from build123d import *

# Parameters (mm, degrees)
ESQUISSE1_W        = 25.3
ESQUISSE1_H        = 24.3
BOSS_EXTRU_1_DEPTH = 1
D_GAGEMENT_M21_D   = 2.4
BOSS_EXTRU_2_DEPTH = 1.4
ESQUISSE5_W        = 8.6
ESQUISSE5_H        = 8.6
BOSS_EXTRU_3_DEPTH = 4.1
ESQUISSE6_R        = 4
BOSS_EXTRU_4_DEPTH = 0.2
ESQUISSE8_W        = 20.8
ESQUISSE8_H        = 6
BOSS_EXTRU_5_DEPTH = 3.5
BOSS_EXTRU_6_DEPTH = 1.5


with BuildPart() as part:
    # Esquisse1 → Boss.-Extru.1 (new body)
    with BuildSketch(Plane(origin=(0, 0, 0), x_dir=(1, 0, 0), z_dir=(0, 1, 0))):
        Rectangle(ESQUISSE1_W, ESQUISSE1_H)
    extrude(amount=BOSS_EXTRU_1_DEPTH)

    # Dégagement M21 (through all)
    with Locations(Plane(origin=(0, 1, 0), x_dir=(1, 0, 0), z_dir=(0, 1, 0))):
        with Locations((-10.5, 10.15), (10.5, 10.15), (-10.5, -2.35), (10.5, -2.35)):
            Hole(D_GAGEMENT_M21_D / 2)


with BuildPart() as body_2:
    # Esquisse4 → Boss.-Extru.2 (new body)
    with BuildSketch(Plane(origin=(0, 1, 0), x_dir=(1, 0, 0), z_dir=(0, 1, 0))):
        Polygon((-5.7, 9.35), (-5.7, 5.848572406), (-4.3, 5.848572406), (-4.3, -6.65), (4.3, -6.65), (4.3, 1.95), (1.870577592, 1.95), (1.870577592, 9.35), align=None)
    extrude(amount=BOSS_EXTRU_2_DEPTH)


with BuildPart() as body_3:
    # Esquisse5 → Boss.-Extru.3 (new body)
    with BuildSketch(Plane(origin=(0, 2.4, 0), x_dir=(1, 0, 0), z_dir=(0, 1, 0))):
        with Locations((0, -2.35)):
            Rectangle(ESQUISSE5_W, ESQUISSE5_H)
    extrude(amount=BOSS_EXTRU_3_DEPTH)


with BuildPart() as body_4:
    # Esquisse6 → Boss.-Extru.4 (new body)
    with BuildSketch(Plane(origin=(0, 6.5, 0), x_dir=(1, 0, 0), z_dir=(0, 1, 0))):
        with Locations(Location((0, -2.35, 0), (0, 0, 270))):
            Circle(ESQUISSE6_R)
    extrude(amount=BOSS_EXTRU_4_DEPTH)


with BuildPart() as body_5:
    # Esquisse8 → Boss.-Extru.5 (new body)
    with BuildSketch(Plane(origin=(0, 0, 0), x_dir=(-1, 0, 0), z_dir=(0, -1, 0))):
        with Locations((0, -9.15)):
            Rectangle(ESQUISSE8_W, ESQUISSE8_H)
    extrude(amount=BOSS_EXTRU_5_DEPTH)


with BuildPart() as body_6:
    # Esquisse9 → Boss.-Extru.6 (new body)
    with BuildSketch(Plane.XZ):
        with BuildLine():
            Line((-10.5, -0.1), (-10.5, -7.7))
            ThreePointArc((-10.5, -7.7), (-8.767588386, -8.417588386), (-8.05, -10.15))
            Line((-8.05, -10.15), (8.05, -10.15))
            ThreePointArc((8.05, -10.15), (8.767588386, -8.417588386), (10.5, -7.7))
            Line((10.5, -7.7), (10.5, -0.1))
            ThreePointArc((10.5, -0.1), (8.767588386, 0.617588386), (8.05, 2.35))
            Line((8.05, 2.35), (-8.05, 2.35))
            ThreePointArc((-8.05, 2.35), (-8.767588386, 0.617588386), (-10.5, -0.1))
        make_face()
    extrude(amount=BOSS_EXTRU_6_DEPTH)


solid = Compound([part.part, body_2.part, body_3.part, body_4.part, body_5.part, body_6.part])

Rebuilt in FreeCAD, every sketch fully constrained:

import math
import FreeCAD as App
import Part
import Sketcher
from FreeCAD import Vector
Q = App.Units.Quantity


def add_polygon(sketch, points):
    """Adds a closed chain of lines whose ends are joined by coincident constraints."""
    first, n = sketch.GeometryCount, len(points)
    for a, b in zip(points, points[1:] + points[:1]):
        sketch.addGeometry(Part.LineSegment(App.Vector(*a, 0), App.Vector(*b, 0)), False)
    for i in range(n):
        sketch.addConstraint(Sketcher.Constraint("Coincident", first + i, 2, first + (i + 1) % n, 1))

doc = App.newDocument("Part")
params = doc.addObject("Spreadsheet::Sheet", "Params")
for row, (alias, value) in enumerate([
    ("sketch1_width", "25.3 mm"),
    ("sketch1_height", "24.3 mm"),
    ("pad1_length", "1 mm"),
    ("sketch2_diameter", "2.4 mm"),
    ("hole_diameter", "2.4 mm"),
    ("sketch3_width", "1.4 mm"),
    ("sketch3_width2", "8.6 mm"),
    ("sketch3_height", "7.4 mm"),
    ("pad2_length", "1.4 mm"),
    ("sketch4_width", "8.6 mm"),
    ("pad3_length", "4.1 mm"),
    ("sketch5_diameter", "8 mm"),
    ("pad4_length", "0.2 mm"),
    ("sketch6_height", "6 mm"),
    ("sketch6_width", "20.8 mm"),
    ("pad5_length", "3.5 mm"),
    ("sketch7_radius", "2.45 mm"),
    ("sketch7_width", "16.1 mm"),
    ("sketch7_height", "7.6 mm"),
    ("pad6_length", "1.5 mm"),
], start=1):
    params.set(f"A{row}", alias)
    params.set(f"B{row}", "=" + value)
    params.setAlias(f"B{row}", alias)

body = doc.addObject("PartDesign::Body", "Body")

# Sketch on XZ plane
sketch1 = doc.addObject("Sketcher::SketchObject", "Sketch")
body.addObject(sketch1)
sketch1.AttachmentSupport = (doc.XZ_Plane, [""])
sketch1.MapMode = "FlatFace"
add_polygon(sketch1, [(-13, -12), (-13, 12), (13, 12), (13, -12)])  # lines 0-3
sketch1.addConstraint([
    Sketcher.Constraint("Vertical", 0),
    Sketcher.Constraint("Horizontal", 1),
    Sketcher.Constraint("Vertical", 2),
    Sketcher.Constraint("Horizontal", 3),
    Sketcher.Constraint("Symmetric", 0, 2, 2, 2, -1, 1),
    Sketcher.Constraint("DistanceX", 1, 1, 1, 2, Q("25.3 mm")),
    Sketcher.Constraint("DistanceY", 0, 1, 0, 2, Q("24.3 mm")),
])
sketch1.setExpression("Constraints[9]", "Params.sketch1_width")
sketch1.setExpression("Constraints[10]", "Params.sketch1_height")
pad1 = doc.addObject("PartDesign::Pad", "Pad")
body.addObject(pad1)
pad1.Profile = sketch1
pad1.setExpression("Length", "Params.pad1_length")
pad1.Reversed = True

# Sketch on XZ plane
sketch2 = doc.addObject("Sketcher::SketchObject", "Sketch001")
body.addObject(sketch2)
sketch2.AttachmentSupport = (doc.XZ_Plane, [""])
sketch2.MapMode = "FlatFace"
sketch2.AttachmentOffset = App.Placement(Vector(0, 0, -1), App.Rotation())
sketch2.addGeometry([
    Part.Circle(Vector(-10.5, -10.2, 0), Vector(0, 0, 1), 1.2),
    Part.Circle(Vector(10.5, -10.2, 0), Vector(0, 0, 1), 1.2),
    Part.Circle(Vector(-10.5, 2.4, 0), Vector(0, 0, 1), 1.2),
    Part.Circle(Vector(10.5, 2.4, 0), Vector(0, 0, 1), 1.2),
], False)
sketch2.addConstraint([
    Sketcher.Constraint("Equal", 0, 1),
    Sketcher.Constraint("Equal", 1, 2),
    Sketcher.Constraint("Equal", 2, 3),
    Sketcher.Constraint("Symmetric", 0, 3, 1, 3, -2),
    Sketcher.Constraint("Symmetric", 2, 3, 3, 3, -2),
    Sketcher.Constraint("Vertical", 0, 3, 2, 3),
    Sketcher.Constraint("Diameter", 0, Q("2.4 mm")),
    Sketcher.Constraint("DistanceX", 0, 3, 1, 3, Q("21 mm")),
    Sketcher.Constraint("DistanceY", 0, 3, 2, 3, Q("12.5 mm")),
    Sketcher.Constraint("DistanceY", 0, 3, -1, 1, Q("10.15 mm")),
])
sketch2.setExpression("Constraints[6]", "Params.sketch2_diameter")
doc.recompute()
hole = doc.addObject("PartDesign::Hole", "Hole")
body.addObject(hole)
hole.Profile = sketch2
hole.ThreadType = "None"
hole.setExpression("Diameter", "Params.hole_diameter")
hole.DepthType = "ThroughAll"
hole.Reversed = True
body2 = doc.addObject("PartDesign::Body", "Body001")

# Sketch on XZ plane
sketch3 = doc.addObject("Sketcher::SketchObject", "Sketch002")
body2.addObject(sketch3)
sketch3.AttachmentSupport = (doc.getObject("XZ_Plane001"), [""])
sketch3.MapMode = "FlatFace"
sketch3.AttachmentOffset = App.Placement(Vector(0, 0, -1), App.Rotation())
add_polygon(sketch3, [(-5.7, -9.3), (-5.7, -5.8), (-4.3, -5.8), (-4.3, 6.7), (4.3, 6.7), (4.3, -1.9), (1.9, -1.9), (1.9, -9.3)])  # lines 0-7
sketch3.addConstraint([
    Sketcher.Constraint("Vertical", 0),
    Sketcher.Constraint("Horizontal", 1),
    Sketcher.Constraint("Vertical", 2),
    Sketcher.Constraint("Horizontal", 3),
    Sketcher.Constraint("Vertical", 4),
    Sketcher.Constraint("Horizontal", 5),
    Sketcher.Constraint("Vertical", 6),
    Sketcher.Constraint("Horizontal", 7),
    Sketcher.Constraint("Equal", 3, 4),
    Sketcher.Constraint("DistanceX", 1, 1, 1, 2, Q("1.4 mm")),
    Sketcher.Constraint("DistanceX", 3, 1, 3, 2, Q("8.6 mm")),
    Sketcher.Constraint("DistanceY", 6, 2, 6, 1, Q("7.4 mm")),
    Sketcher.Constraint("DistanceX", 0, 2, -1, 1, Q("5.7 mm")),
    Sketcher.Constraint("DistanceY", -1, 1, 2, 2, Q("6.65 mm")),
    Sketcher.Constraint("DistanceX", 5, 2, 5, 1, Q("2.429422 mm")),
    Sketcher.Constraint("DistanceY", 0, 1, 0, 2, Q("3.501428 mm")),
])
sketch3.setExpression("Constraints[17]", "Params.sketch3_width")
sketch3.setExpression("Constraints[18]", "Params.sketch3_width2")
sketch3.setExpression("Constraints[19]", "Params.sketch3_height")
pad2 = doc.addObject("PartDesign::Pad", "Pad001")
body2.addObject(pad2)
pad2.Profile = sketch3
pad2.setExpression("Length", "Params.pad2_length")
pad2.Reversed = True
body3 = doc.addObject("PartDesign::Body", "Body002")

# Sketch on XZ plane
sketch4 = doc.addObject("Sketcher::SketchObject", "Sketch003")
body3.addObject(sketch4)
sketch4.AttachmentSupport = (doc.getObject("XZ_Plane002"), [""])
sketch4.MapMode = "FlatFace"
sketch4.AttachmentOffset = App.Placement(Vector(0, 0, -2.4), App.Rotation())
add_polygon(sketch4, [(-4, -2), (-4, 7), (4, 7), (4, -2)])  # lines 0-3
sketch4.addConstraint([
    Sketcher.Constraint("Vertical", 0),
    Sketcher.Constraint("Horizontal", 1),
    Sketcher.Constraint("Vertical", 2),
    Sketcher.Constraint("Horizontal", 3),
    Sketcher.Constraint("Equal", 3, 0),
    Sketcher.Constraint("DistanceX", 1, 1, 1, 2, Q("8.6 mm")),
    Sketcher.Constraint("DistanceX", 0, 2, -1, 1, Q("4.3 mm")),
    Sketcher.Constraint("DistanceY", -1, 1, 0, 2, Q("6.65 mm")),
])
sketch4.setExpression("Constraints[9]", "Params.sketch4_width")
pad3 = doc.addObject("PartDesign::Pad", "Pad002")
body3.addObject(pad3)
pad3.Profile = sketch4
pad3.setExpression("Length", "Params.pad3_length")
pad3.Reversed = True
body4 = doc.addObject("PartDesign::Body", "Body003")

# Sketch on XZ plane
sketch5 = doc.addObject("Sketcher::SketchObject", "Sketch004")
body4.addObject(sketch5)
sketch5.AttachmentSupport = (doc.getObject("XZ_Plane003"), [""])
sketch5.MapMode = "FlatFace"
sketch5.AttachmentOffset = App.Placement(Vector(0, 0, -6.5), App.Rotation())
sketch5.addGeometry(Part.Circle(Vector(0, 2.4, 0), Vector(0, 0, 1), 4), False)
sketch5.addConstraint([
    Sketcher.Constraint("PointOnObject", 0, 3, -2),
    Sketcher.Constraint("Diameter", 0, Q("8 mm")),
    Sketcher.Constraint("DistanceY", -1, 1, 0, 3, Q("2.35 mm")),
])
sketch5.setExpression("Constraints[1]", "Params.sketch5_diameter")
pad4 = doc.addObject("PartDesign::Pad", "Pad003")
body4.addObject(pad4)
pad4.Profile = sketch5
pad4.setExpression("Length", "Params.pad4_length")
pad4.Reversed = True
body5 = doc.addObject("PartDesign::Body", "Body004")

# Sketch on XZ plane
sketch6 = doc.addObject("Sketcher::SketchObject", "Sketch005")
body5.addObject(sketch6)
sketch6.AttachmentSupport = (doc.getObject("XZ_Plane004"), [""])
sketch6.MapMode = "FlatFace"
add_polygon(sketch6, [(10, 6), (10, 12), (-10, 12), (-10, 6)])  # lines 0-3
sketch6.addConstraint([
    Sketcher.Constraint("Vertical", 0),
    Sketcher.Constraint("Horizontal", 1),
    Sketcher.Constraint("Vertical", 2),
    Sketcher.Constraint("Horizontal", 3),
    Sketcher.Constraint("DistanceY", 0, 1, 0, 2, Q("6 mm")),
    Sketcher.Constraint("DistanceX", 1, 2, 1, 1, Q("20.8 mm")),
    Sketcher.Constraint("DistanceX", -1, 1, 0, 2, Q("10.4 mm")),
    Sketcher.Constraint("DistanceY", -1, 1, 0, 2, Q("12.15 mm")),
])
sketch6.setExpression("Constraints[8]", "Params.sketch6_height")
sketch6.setExpression("Constraints[9]", "Params.sketch6_width")
pad5 = doc.addObject("PartDesign::Pad", "Pad004")
body5.addObject(pad5)
pad5.Profile = sketch6
pad5.setExpression("Length", "Params.pad5_length")
body6 = doc.addObject("PartDesign::Body", "Body005")

# Sketch on XZ plane
sketch7 = doc.addObject("Sketcher::SketchObject", "Sketch006")
body6.addObject(sketch7)
sketch7.AttachmentSupport = (doc.getObject("XZ_Plane005"), [""])
sketch7.MapMode = "FlatFace"
sketch7.addGeometry([
    Part.LineSegment(Vector(-10.5, -0.1, 0), Vector(-10.5, -7.7, 0)),  # 0
    Part.ArcOfCircle(Part.Circle(Vector(-10.5, -10.2, 0), Vector(0, 0, 1), 2.5), math.radians(0), math.radians(90)),  # 1
    Part.LineSegment(Vector(-8.1, -10.2, 0), Vector(8.1, -10.2, 0)),  # 2
    Part.ArcOfCircle(Part.Circle(Vector(10.5, -10.2, 0), Vector(0, 0, 1), 2.5), math.radians(90), math.radians(180)),  # 3
    Part.LineSegment(Vector(10.5, -7.7, 0), Vector(10.5, -0.1, 0)),  # 4
    Part.ArcOfCircle(Part.Circle(Vector(10.5, 2.4, 0), Vector(0, 0, 1), 2.5), math.radians(180), math.radians(270)),  # 5
    Part.LineSegment(Vector(8.1, 2.4, 0), Vector(-8.1, 2.4, 0)),  # 6
    Part.ArcOfCircle(Part.Circle(Vector(-10.5, 2.4, 0), Vector(0, 0, 1), 2.5), math.radians(-90), math.radians(0)),  # 7
], False)
sketch7.addConstraint([
    Sketcher.Constraint("Coincident", 0, 2, 1, 2),
    Sketcher.Constraint("Coincident", 1, 1, 2, 1),
    Sketcher.Constraint("Coincident", 2, 2, 3, 2),
    Sketcher.Constraint("Coincident", 3, 1, 4, 1),
    Sketcher.Constraint("Coincident", 4, 2, 5, 2),
    Sketcher.Constraint("Coincident", 5, 1, 6, 1),
    Sketcher.Constraint("Coincident", 6, 2, 7, 2),
    Sketcher.Constraint("Coincident", 7, 1, 0, 1),
    Sketcher.Constraint("Vertical", 0),
    Sketcher.Constraint("Horizontal", 2),
    Sketcher.Constraint("Vertical", 4),
    Sketcher.Constraint("Horizontal", 6),
    Sketcher.Constraint("Equal", 1, 3),
    Sketcher.Constraint("Equal", 3, 5),
    Sketcher.Constraint("Equal", 5, 7),
    Sketcher.Constraint("Symmetric", 1, 3, 3, 3, -2),
    Sketcher.Constraint("Symmetric", 5, 3, 7, 3, -2),
    Sketcher.Constraint("Horizontal", 3, 3, 1, 1),
    Sketcher.Constraint("Horizontal", 7, 3, 5, 1),
    Sketcher.Constraint("Vertical", 3, 3, 5, 3),
    Sketcher.Constraint("Vertical", 7, 3, 0, 2),
    Sketcher.Constraint("Vertical", 5, 3, 3, 1),
    Sketcher.Constraint("Radius", 1, Q("2.45 mm")),
    Sketcher.Constraint("DistanceX", 2, 1, 2, 2, Q("16.1 mm")),
    Sketcher.Constraint("DistanceY", 0, 2, 0, 1, Q("7.6 mm")),
    Sketcher.Constraint("DistanceY", 0, 2, -1, 1, Q("7.7 mm")),
])
sketch7.setExpression("Constraints[22]", "Params.sketch7_radius")
sketch7.setExpression("Constraints[23]", "Params.sketch7_width")
sketch7.setExpression("Constraints[24]", "Params.sketch7_height")
pad6 = doc.addObject("PartDesign::Pad", "Pad005")
body6.addObject(pad6)
pad6.Profile = sketch7
pad6.setExpression("Length", "Params.pad6_length")

doc.recompute()
